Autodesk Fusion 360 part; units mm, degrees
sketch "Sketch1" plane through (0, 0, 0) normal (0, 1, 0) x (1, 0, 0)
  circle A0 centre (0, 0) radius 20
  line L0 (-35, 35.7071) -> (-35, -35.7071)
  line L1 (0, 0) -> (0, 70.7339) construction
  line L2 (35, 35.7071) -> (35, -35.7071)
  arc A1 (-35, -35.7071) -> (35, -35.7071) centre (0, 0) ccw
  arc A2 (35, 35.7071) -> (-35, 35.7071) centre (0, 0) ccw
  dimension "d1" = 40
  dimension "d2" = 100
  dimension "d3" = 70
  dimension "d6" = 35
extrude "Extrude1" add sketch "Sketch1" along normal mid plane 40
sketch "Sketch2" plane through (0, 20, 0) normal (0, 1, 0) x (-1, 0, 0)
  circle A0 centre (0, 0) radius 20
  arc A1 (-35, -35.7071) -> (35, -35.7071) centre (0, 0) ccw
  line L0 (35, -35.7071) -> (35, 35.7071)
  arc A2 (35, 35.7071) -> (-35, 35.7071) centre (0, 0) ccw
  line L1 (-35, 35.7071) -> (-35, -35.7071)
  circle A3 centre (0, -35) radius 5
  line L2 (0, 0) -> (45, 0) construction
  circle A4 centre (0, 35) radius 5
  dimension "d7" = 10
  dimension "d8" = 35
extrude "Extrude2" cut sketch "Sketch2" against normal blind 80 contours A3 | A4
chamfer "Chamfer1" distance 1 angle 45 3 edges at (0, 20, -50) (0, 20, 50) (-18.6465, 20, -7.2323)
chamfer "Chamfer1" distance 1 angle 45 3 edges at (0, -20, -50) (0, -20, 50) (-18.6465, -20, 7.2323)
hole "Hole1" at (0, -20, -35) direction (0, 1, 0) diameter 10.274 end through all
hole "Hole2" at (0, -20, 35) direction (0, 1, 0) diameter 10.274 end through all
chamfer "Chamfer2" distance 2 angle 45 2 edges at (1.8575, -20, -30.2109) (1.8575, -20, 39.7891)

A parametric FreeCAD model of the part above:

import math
import FreeCAD as App
import Part
import Sketcher

V = App.Vector
Q = App.Units.Quantity


def edges_at(feature, points):
    """Names of the edges that pass closest to the given points."""
    edges = feature.Shape.Edges
    near = lambda p: min(range(len(edges)), key=lambda i: edges[i].distToShape(Part.Vertex(*p))[0])
    return sorted({f"Edge{near(p) + 1}" for p in points})

doc = App.newDocument("Part")
body = doc.addObject("PartDesign::Body", "Body")

sketch1 = body.newObject("Sketcher::SketchObject", "Sketch")
sketch1.AttachmentSupport = (doc.getObject("XZ_Plane"), [""])
sketch1.MapMode = "FlatFace"
sketch1.addGeometry(Part.ArcOfCircle(Part.Circle(V(0, 0, 0), V(0, 0, 1), 49.99997), math.radians(-134.427038), math.radians(-45.572962)), False)
sketch1.addGeometry(Part.LineSegment(V(-35, -35.7071, 0), V(-35, 35.7071, 0)), False)
sketch1.addGeometry(Part.ArcOfCircle(Part.Circle(V(0, 0, 0), V(0, 0, 1), 49.99997), math.radians(45.572962), math.radians(134.427038)), False)
sketch1.addGeometry(Part.LineSegment(V(35, 35.7071, 0), V(35, -35.7071, 0)), False)
sketch1.addGeometry(Part.Circle(V(0, 0, 0), V(0, 0, 1), 20), False)
sketch1.addConstraint(Sketcher.Constraint("Coincident", 0, 1, 1, 1))
sketch1.addConstraint(Sketcher.Constraint("Coincident", 1, 2, 2, 2))
sketch1.addConstraint(Sketcher.Constraint("Coincident", 2, 1, 3, 1))
sketch1.addConstraint(Sketcher.Constraint("Coincident", 3, 2, 0, 2))
sketch1.addConstraint(Sketcher.Constraint("Vertical", 1))
sketch1.addConstraint(Sketcher.Constraint("Vertical", 3))
sketch1.addConstraint(Sketcher.Constraint("Coincident", 0, 3, -1, 1))
sketch1.addConstraint(Sketcher.Constraint("Coincident", 2, 3, -1, 1))
sketch1.addConstraint(Sketcher.Constraint("Coincident", 4, 3, -1, 1))
sketch1.addConstraint(Sketcher.Constraint("Equal", 0, 2))
sketch1.addConstraint(Sketcher.Constraint("Horizontal", 1, 2, 2, 1))
sketch1.addConstraint(Sketcher.Constraint("Diameter", 4, Q("40 mm")))
sketch1.addConstraint(Sketcher.Constraint("Radius", 0, Q("50 mm")))
sketch1.addConstraint(Sketcher.Constraint("DistanceX", 0, 1, -1, 1, Q("35 mm")))
pad1 = body.newObject("PartDesign::Pad", "Pad")
pad1.Profile = sketch1
pad1.Length = 40
pad1.Midplane = True

sketch2 = body.newObject("Sketcher::SketchObject", "Sketch001")
sketch2.AttachmentSupport = (doc.getObject("XZ_Plane"), [""])
sketch2.MapMode = "FlatFace"
sketch2.AttachmentOffset = App.Placement(V(0, 0, -20), App.Rotation())
sketch2.addGeometry(Part.Circle(V(0, -35, 0), V(0, 0, 1), 5), False)
sketch2.addGeometry(Part.Circle(V(0, 35, 0), V(0, 0, 1), 5), False)
sketch2.addConstraint(Sketcher.Constraint("Equal", 0, 1))
sketch2.addConstraint(Sketcher.Constraint("Symmetric", 0, 3, 1, 3, -1, 1))
sketch2.addConstraint(Sketcher.Constraint("PointOnObject", 0, 3, -2))
sketch2.addConstraint(Sketcher.Constraint("Diameter", 0, Q("10 mm")))
sketch2.addConstraint(Sketcher.Constraint("DistanceY", 0, 3, -1, 1, Q("35 mm")))
pocket1 = body.newObject("PartDesign::Pocket", "Pocket")
pocket1.Profile = sketch2
pocket1.Length = 80
pocket1.Reversed = True
doc.recompute()

chamfer = body.newObject("PartDesign::Chamfer", "Chamfer")
chamfer.Base = (pocket1, edges_at(pocket1, [(0, 20, -50), (0, 20, 50), (-18.646, 20, -7.232)]))
chamfer.Size = 1
doc.recompute()

chamfer2 = body.newObject("PartDesign::Chamfer", "Chamfer001")
chamfer2.Base = (chamfer, edges_at(chamfer, [(0, -20, -50), (0, -20, 50), (-18.646, -20, 7.232)]))
chamfer2.Size = 1

sketch3 = body.newObject("Sketcher::SketchObject", "Sketch002")
sketch3.AttachmentSupport = (doc.getObject("XZ_Plane"), [""])
sketch3.MapMode = "FlatFace"
sketch3.AttachmentOffset = App.Placement(V(0, 0, 20), App.Rotation())
sketch3.addGeometry(Part.Circle(V(0, -35, 0), V(0, 0, 1), 5.137), False)
sketch3.addConstraint(Sketcher.Constraint("PointOnObject", 0, 3, -2))
sketch3.addConstraint(Sketcher.Constraint("Diameter", 0, Q("10.274 mm")))
sketch3.addConstraint(Sketcher.Constraint("DistanceY", 0, 3, -1, 1, Q("35 mm")))
doc.recompute()
hole = body.newObject("PartDesign::Hole", "Hole")
hole.Profile = sketch3
hole.ThreadType = "None"
hole.Diameter = 10.274
hole.DepthType = "ThroughAll"

sketch4 = body.newObject("Sketcher::SketchObject", "Sketch003")
sketch4.AttachmentSupport = (doc.getObject("XZ_Plane"), [""])
sketch4.MapMode = "FlatFace"
sketch4.AttachmentOffset = App.Placement(V(0, 0, 20), App.Rotation())
sketch4.addGeometry(Part.Circle(V(0, 35, 0), V(0, 0, 1), 5.137), False)
sketch4.addConstraint(Sketcher.Constraint("PointOnObject", 0, 3, -2))
sketch4.addConstraint(Sketcher.Constraint("Diameter", 0, Q("10.274 mm")))
sketch4.addConstraint(Sketcher.Constraint("DistanceY", -1, 1, 0, 3, Q("35 mm")))
doc.recompute()
hole2 = body.newObject("PartDesign::Hole", "Hole001")
hole2.Profile = sketch4
hole2.ThreadType = "None"
hole2.Diameter = 10.274
hole2.DepthType = "ThroughAll"
doc.recompute()

chamfer3 = body.newObject("PartDesign::Chamfer", "Chamfer002")
chamfer3.Base = (hole2, edges_at(hole2, [(1.857, -20, -30.211), (1.857, -20, 39.789)]))
chamfer3.Size = 2

doc.recompute()
